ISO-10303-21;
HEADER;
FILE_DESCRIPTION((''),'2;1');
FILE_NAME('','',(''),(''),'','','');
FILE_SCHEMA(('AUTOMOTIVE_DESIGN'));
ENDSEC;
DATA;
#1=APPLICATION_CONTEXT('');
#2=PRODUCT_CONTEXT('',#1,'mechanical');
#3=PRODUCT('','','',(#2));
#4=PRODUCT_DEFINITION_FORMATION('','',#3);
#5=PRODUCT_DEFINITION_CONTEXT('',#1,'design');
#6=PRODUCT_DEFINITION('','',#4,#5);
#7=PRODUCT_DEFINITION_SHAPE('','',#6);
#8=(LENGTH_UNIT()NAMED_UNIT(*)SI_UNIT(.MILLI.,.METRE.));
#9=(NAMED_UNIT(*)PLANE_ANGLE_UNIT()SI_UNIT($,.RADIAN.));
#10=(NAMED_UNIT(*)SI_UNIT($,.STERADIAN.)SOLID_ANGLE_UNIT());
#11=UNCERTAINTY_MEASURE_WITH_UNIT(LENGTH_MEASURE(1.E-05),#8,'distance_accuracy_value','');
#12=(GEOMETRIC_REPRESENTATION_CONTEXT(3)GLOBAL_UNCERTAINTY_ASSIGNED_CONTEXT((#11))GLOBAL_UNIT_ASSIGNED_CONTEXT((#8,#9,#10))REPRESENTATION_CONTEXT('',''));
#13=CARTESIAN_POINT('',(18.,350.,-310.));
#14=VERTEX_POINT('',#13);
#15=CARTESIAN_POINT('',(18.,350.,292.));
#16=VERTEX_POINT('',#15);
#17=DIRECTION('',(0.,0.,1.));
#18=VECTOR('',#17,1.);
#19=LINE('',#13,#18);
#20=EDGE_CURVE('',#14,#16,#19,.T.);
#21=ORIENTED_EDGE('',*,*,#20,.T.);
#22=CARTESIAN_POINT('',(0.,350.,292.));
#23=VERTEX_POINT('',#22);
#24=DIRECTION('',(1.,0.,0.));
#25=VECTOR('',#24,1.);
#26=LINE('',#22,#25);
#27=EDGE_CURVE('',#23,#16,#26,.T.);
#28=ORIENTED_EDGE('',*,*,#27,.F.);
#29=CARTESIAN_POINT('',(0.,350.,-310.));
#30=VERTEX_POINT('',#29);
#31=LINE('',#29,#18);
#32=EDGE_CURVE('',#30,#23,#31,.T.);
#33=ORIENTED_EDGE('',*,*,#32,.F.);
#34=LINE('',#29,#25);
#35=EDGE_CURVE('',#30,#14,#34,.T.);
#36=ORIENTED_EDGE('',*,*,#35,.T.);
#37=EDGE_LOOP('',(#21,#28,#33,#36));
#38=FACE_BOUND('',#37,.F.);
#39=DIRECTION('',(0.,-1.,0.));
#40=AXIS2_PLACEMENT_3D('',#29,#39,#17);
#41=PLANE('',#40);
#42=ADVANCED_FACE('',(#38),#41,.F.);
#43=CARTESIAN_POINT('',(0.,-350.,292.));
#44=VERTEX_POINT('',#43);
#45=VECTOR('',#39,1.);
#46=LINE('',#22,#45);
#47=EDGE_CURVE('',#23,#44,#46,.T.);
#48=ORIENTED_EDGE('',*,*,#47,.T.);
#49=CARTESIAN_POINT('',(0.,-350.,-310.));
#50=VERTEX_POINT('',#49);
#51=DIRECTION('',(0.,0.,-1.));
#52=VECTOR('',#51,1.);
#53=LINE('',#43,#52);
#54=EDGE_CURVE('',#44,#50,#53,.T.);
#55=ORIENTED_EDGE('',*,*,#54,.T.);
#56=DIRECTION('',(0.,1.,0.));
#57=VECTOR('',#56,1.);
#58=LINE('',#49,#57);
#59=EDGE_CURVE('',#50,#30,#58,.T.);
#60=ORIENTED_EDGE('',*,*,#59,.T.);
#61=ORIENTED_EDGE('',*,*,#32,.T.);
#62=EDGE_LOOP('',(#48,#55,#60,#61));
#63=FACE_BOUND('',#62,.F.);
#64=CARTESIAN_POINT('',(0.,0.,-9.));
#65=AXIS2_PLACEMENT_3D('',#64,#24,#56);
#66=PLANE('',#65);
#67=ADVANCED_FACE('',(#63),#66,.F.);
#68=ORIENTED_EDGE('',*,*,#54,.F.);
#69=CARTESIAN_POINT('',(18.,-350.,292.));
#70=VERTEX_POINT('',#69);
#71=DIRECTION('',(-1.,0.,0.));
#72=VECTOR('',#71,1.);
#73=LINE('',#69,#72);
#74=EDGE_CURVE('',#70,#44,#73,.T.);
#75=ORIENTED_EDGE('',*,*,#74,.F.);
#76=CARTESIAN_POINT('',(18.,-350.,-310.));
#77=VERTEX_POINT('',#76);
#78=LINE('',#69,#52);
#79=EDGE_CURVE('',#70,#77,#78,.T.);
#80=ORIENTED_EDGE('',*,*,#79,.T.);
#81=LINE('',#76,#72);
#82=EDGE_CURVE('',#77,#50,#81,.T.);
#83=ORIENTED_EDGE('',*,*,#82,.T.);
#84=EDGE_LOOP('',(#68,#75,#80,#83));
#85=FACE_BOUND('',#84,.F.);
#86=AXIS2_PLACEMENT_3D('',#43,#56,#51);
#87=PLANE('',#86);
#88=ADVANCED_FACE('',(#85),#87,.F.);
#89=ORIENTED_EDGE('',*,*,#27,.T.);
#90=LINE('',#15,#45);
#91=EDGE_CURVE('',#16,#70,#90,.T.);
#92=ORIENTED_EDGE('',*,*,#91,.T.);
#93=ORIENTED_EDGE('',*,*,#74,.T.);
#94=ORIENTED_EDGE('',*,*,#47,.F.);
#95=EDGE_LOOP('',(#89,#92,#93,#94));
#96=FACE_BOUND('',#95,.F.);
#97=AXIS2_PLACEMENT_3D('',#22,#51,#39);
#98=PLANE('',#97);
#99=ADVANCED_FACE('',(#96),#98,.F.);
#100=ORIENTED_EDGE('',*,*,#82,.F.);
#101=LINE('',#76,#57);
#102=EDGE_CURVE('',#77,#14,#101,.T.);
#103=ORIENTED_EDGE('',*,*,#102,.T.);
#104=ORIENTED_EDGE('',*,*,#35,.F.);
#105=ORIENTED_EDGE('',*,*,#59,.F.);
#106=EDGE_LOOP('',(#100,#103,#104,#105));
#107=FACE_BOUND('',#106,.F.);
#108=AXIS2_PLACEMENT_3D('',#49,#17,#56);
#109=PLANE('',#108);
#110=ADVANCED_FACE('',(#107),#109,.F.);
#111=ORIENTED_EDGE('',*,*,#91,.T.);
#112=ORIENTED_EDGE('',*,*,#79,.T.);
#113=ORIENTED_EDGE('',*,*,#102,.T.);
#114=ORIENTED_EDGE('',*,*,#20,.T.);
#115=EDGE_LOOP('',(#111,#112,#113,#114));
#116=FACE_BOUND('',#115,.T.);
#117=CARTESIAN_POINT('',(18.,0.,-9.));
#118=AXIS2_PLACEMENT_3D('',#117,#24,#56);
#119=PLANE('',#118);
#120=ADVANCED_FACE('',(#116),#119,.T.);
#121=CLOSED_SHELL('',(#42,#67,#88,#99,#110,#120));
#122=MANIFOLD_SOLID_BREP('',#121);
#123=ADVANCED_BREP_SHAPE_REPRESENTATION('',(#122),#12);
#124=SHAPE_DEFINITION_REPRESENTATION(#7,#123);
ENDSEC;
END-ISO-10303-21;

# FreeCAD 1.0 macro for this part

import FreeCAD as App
import Part
import Sketcher
from FreeCAD import Vector

doc = App.newDocument("Part")
body = doc.addObject("PartDesign::Body", "Body")

# Sketch on YZ plane
sketch1 = body.newObject("Sketcher::SketchObject", "Sketch")
sketch1.AttachmentSupport = (doc.getObject("YZ_Plane"), [""])
sketch1.MapMode = "FlatFace"
sketch1.addGeometry([
    Part.LineSegment(Vector(-350, -310, 0), Vector(350, -310, 0)),
    Part.LineSegment(Vector(350, -310, 0), Vector(350, 292, 0)),
    Part.LineSegment(Vector(350, 292, 0), Vector(-350, 292, 0)),
    Part.LineSegment(Vector(-350, 292, 0), Vector(-350, -310, 0)),
], False)
sketch1.addConstraint([
    Sketcher.Constraint("Coincident", 0, 2, 1, 1),
    Sketcher.Constraint("Coincident", 1, 2, 2, 1),
    Sketcher.Constraint("Coincident", 2, 2, 3, 1),
    Sketcher.Constraint("Coincident", 3, 2, 0, 1),
    Sketcher.Constraint("Horizontal", 0),
    Sketcher.Constraint("Vertical", 1),
    Sketcher.Constraint("Horizontal", 2),
    Sketcher.Constraint("Vertical", 3),
    Sketcher.Constraint("DistanceX", 0, 1, 0, 2, 700.0),
    Sketcher.Constraint("DistanceY", 1, 1, 1, 2, 602.0),
    Sketcher.Constraint("DistanceX", -1, 1, 0, 2, 350.0),
    Sketcher.Constraint("DistanceY", 0, 2, -1, 1, 310.0),
])
pad1 = body.newObject("PartDesign::Pad", "Pad")
pad1.Profile = sketch1
pad1.Length = 9

# Sketch on YZ plane
sketch2 = body.newObject("Sketcher::SketchObject", "Sketch001")
sketch2.AttachmentSupport = (doc.getObject("YZ_Plane"), [""])
sketch2.MapMode = "FlatFace"
sketch2.addGeometry([
    Part.LineSegment(Vector(-350, -310, 0), Vector(350, -310, 0)),
    Part.LineSegment(Vector(350, -310, 0), Vector(350, 292, 0)),
    Part.LineSegment(Vector(350, 292, 0), Vector(-350, 292, 0)),
    Part.LineSegment(Vector(-350, 292, 0), Vector(-350, -310, 0)),
], False)
sketch2.addConstraint([
    Sketcher.Constraint("Coincident", 0, 2, 1, 1),
    Sketcher.Constraint("Coincident", 1, 2, 2, 1),
    Sketcher.Constraint("Coincident", 2, 2, 3, 1),
    Sketcher.Constraint("Coincident", 3, 2, 0, 1),
    Sketcher.Constraint("Horizontal", 0),
    Sketcher.Constraint("Vertical", 1),
    Sketcher.Constraint("Horizontal", 2),
    Sketcher.Constraint("Vertical", 3),
    Sketcher.Constraint("DistanceX", 0, 1, 0, 2, 700.0),
    Sketcher.Constraint("DistanceY", 1, 1, 1, 2, 602.0),
    Sketcher.Constraint("DistanceX", -1, 1, 0, 2, 350.0),
    Sketcher.Constraint("DistanceY", 0, 2, -1, 1, 310.0),
])
pad2 = body.newObject("PartDesign::Pad", "Pad001")
pad2.Profile = sketch2
pad2.Length = 18

doc.recompute()
